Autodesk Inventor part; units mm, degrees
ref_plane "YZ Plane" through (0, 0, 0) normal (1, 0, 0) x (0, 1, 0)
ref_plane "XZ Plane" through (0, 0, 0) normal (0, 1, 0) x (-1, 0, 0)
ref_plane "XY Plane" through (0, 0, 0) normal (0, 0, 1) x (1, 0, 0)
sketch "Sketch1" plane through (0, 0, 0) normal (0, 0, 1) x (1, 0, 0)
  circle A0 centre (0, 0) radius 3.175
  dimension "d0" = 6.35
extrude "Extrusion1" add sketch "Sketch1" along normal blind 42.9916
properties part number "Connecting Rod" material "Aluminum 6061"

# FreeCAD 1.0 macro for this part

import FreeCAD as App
import Part
import Sketcher
Q = App.Units.Quantity

doc = App.newDocument("Part")
params = doc.addObject("Spreadsheet::Sheet", "Params")
for row, (alias, value) in enumerate([
    ("sketch1_diameter", "0.25 in"),
    ("pad1_length", "42.9916 mm"),
], start=1):
    params.set(f"A{row}", alias)
    params.set(f"B{row}", "=" + value)
    params.setAlias(f"B{row}", alias)

body = doc.addObject("PartDesign::Body", "Body")

sketch1 = body.newObject("Sketcher::SketchObject", "Sketch")
sketch1.AttachmentSupport = (doc.getObject("XY_Plane"), [""])
sketch1.MapMode = "FlatFace"
sketch1.addGeometry(Part.Circle(App.Vector(0, 0, 0), App.Vector(0, 0, 1), 3.2), False)
sketch1.addConstraint([
    Sketcher.Constraint("Coincident", 0, 3, -1, 1),
    Sketcher.Constraint("Diameter", 0, Q("0.25 in")),
])
sketch1.setExpression("Constraints[1]", "Params.sketch1_diameter")
pad1 = body.newObject("PartDesign::Pad", "Pad")
pad1.Profile = sketch1
pad1.setExpression("Length", "Params.pad1_length")

doc.recompute()
